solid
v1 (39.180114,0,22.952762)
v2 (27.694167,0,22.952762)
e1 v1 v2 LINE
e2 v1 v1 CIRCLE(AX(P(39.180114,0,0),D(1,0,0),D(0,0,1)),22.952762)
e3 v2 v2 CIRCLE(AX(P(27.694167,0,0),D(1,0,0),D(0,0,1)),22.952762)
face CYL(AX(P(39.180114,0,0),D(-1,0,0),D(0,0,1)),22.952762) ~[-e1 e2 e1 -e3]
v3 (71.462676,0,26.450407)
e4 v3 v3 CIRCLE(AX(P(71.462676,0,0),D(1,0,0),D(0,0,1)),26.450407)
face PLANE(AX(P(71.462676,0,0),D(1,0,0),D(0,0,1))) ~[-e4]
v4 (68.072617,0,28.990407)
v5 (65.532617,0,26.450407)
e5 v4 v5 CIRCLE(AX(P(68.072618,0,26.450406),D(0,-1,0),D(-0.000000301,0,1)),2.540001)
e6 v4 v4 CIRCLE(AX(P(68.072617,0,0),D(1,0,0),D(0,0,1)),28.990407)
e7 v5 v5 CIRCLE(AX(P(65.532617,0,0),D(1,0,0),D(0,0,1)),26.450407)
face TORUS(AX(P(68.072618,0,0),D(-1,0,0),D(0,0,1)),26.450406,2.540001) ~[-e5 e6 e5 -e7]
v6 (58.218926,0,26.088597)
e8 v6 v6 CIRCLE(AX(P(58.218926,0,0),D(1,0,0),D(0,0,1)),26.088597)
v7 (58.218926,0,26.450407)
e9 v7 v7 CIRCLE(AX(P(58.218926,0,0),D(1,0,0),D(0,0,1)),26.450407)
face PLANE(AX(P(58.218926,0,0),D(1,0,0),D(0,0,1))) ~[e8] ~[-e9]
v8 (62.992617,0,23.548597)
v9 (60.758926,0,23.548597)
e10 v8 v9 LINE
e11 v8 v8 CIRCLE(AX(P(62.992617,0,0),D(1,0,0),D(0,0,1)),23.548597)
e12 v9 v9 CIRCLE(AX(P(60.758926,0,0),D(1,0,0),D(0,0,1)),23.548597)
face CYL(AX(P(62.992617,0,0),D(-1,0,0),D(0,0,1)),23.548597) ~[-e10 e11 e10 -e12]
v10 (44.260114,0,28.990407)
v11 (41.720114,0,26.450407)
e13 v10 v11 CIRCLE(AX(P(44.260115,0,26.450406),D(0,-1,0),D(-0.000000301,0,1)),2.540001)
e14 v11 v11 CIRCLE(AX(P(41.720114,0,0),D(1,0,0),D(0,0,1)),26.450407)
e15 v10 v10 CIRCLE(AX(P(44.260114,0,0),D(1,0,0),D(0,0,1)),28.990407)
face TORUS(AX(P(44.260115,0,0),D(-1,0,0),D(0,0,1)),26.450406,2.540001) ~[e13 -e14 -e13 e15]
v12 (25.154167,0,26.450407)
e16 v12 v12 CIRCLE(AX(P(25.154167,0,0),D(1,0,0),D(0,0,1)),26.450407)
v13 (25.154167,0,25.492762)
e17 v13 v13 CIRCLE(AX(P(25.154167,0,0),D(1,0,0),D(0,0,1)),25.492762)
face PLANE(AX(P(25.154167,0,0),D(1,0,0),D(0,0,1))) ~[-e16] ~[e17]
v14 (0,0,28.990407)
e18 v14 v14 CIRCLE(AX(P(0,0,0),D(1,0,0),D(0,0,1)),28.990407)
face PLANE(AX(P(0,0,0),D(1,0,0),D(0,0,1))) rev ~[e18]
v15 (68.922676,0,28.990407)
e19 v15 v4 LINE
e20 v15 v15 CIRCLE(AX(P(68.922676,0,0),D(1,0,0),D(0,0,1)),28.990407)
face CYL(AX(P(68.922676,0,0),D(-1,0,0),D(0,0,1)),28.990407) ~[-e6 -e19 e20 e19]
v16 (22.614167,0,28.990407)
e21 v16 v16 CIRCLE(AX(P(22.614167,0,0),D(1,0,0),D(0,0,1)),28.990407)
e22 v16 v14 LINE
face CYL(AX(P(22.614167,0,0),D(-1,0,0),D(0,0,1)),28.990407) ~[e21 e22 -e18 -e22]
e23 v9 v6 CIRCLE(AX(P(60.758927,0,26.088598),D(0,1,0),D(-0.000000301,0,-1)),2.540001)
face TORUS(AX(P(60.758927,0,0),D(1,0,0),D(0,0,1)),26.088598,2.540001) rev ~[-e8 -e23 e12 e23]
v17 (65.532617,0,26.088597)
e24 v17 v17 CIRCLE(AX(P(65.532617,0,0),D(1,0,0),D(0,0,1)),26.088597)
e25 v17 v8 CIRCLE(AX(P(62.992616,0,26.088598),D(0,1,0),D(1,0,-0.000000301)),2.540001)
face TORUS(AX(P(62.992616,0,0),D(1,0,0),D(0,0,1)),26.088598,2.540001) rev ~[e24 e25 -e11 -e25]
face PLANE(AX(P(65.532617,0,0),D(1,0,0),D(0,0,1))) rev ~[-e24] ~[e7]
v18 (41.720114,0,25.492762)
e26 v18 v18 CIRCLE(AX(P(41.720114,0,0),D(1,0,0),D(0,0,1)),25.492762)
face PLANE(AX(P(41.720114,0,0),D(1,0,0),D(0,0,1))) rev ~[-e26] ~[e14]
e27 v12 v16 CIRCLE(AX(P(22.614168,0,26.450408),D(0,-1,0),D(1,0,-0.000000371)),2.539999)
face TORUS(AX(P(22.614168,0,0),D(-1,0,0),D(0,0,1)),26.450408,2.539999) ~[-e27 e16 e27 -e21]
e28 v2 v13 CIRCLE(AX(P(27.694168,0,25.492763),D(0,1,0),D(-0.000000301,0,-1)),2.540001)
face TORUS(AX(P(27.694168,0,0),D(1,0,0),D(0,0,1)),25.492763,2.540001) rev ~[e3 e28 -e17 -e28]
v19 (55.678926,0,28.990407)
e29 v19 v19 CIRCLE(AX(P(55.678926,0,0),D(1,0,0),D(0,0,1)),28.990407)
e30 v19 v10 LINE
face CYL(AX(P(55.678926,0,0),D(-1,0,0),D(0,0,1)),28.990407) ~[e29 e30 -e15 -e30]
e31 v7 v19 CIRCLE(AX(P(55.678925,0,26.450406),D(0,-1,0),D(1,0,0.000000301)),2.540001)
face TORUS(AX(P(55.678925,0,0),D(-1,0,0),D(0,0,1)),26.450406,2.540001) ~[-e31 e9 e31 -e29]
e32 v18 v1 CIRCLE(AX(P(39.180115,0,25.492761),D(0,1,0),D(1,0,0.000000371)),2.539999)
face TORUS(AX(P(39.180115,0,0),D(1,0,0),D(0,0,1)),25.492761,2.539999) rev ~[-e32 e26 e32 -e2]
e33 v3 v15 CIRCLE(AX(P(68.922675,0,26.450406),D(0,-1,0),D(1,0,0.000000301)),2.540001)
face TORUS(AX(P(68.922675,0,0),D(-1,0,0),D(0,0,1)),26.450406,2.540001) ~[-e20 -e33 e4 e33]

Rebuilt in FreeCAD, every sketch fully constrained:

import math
import FreeCAD as App
import Part
import Sketcher
from FreeCAD import Vector
Q = App.Units.Quantity

doc = App.newDocument("Part")
body = doc.addObject("PartDesign::Body", "Body")

sketch1 = doc.addObject("Sketcher::SketchObject", "Sketch")
body.addObject(sketch1)
sketch1.AttachmentSupport = (doc.XZ_Plane, [""])
sketch1.MapMode = "FlatFace"
sketch1.addGeometry([
    Part.LineSegment(Vector(0, 28.99, 0), Vector(0, 0, 0)),
    Part.LineSegment(Vector(0, 0, 0), Vector(71.46, 0, 0)),
    Part.LineSegment(Vector(71.46, 0, 0), Vector(71.46, 26.45, 0)),
    Part.ArcOfCircle(Part.Circle(Vector(68.92, 26.45, 0), Vector(0, 0, 1), 2.54), math.radians(0), math.radians(90)),
    Part.LineSegment(Vector(68.92, 28.99, 0), Vector(68.07, 28.99, 0)),
    Part.ArcOfCircle(Part.Circle(Vector(68.07, 26.45, 0), Vector(0, 0, 1), 2.54), math.radians(90), math.radians(180)),
    Part.LineSegment(Vector(65.53, 26.45, 0), Vector(65.53, 26.09, 0)),
    Part.ArcOfCircle(Part.Circle(Vector(62.99, 26.09, 0), Vector(0, 0, 1), 2.54), math.radians(-90), math.radians(0)),
    Part.LineSegment(Vector(62.99, 23.55, 0), Vector(60.76, 23.55, 0)),
    Part.ArcOfCircle(Part.Circle(Vector(60.76, 26.09, 0), Vector(0, 0, 1), 2.54), math.radians(-180), math.radians(-90)),
    Part.LineSegment(Vector(58.22, 26.09, 0), Vector(58.22, 26.45, 0)),
    Part.ArcOfCircle(Part.Circle(Vector(55.68, 26.45, 0), Vector(0, 0, 1), 2.54), math.radians(0), math.radians(90)),
    Part.LineSegment(Vector(55.68, 28.99, 0), Vector(44.26, 28.99, 0)),
    Part.ArcOfCircle(Part.Circle(Vector(44.26, 26.45, 0), Vector(0, 0, 1), 2.54), math.radians(90), math.radians(180)),
    Part.LineSegment(Vector(41.72, 26.45, 0), Vector(41.72, 25.49, 0)),
    Part.ArcOfCircle(Part.Circle(Vector(39.18, 25.49, 0), Vector(0, 0, 1), 2.54), math.radians(-90), math.radians(0)),
    Part.LineSegment(Vector(39.18, 22.95, 0), Vector(27.69, 22.95, 0)),
    Part.ArcOfCircle(Part.Circle(Vector(27.69, 25.49, 0), Vector(0, 0, 1), 2.54), math.radians(-180), math.radians(-90)),
    Part.LineSegment(Vector(25.15, 25.49, 0), Vector(25.15, 26.45, 0)),
    Part.ArcOfCircle(Part.Circle(Vector(22.61, 26.45, 0), Vector(0, 0, 1), 2.54), math.radians(0), math.radians(90)),
    Part.LineSegment(Vector(22.61, 28.99, 0), Vector(0, 28.99, 0)),
], False)
sketch1.addConstraint([
    Sketcher.Constraint("Coincident", 0, 2, 1, 1),
    Sketcher.Constraint("Coincident", 1, 2, 2, 1),
    Sketcher.Constraint("Tangent", 2, 2, 3, 1),
    Sketcher.Constraint("Tangent", 3, 2, 4, 1),
    Sketcher.Constraint("Tangent", 4, 2, 5, 1),
    Sketcher.Constraint("Tangent", 5, 2, 6, 1),
    Sketcher.Constraint("Tangent", 6, 2, 7, 2),
    Sketcher.Constraint("Tangent", 7, 1, 8, 1),
    Sketcher.Constraint("Tangent", 8, 2, 9, 2),
    Sketcher.Constraint("Tangent", 9, 1, 10, 1),
    Sketcher.Constraint("Tangent", 10, 2, 11, 1),
    Sketcher.Constraint("Tangent", 11, 2, 12, 1),
    Sketcher.Constraint("Tangent", 12, 2, 13, 1),
    Sketcher.Constraint("Tangent", 13, 2, 14, 1),
    Sketcher.Constraint("Tangent", 14, 2, 15, 2),
    Sketcher.Constraint("Tangent", 15, 1, 16, 1),
    Sketcher.Constraint("Tangent", 16, 2, 17, 2),
    Sketcher.Constraint("Tangent", 17, 1, 18, 1),
    Sketcher.Constraint("Tangent", 18, 2, 19, 1),
    Sketcher.Constraint("Tangent", 19, 2, 20, 1),
    Sketcher.Constraint("Coincident", 20, 2, 0, 1),
    Sketcher.Constraint("Vertical", 0),
    Sketcher.Constraint("Horizontal", 1),
    Sketcher.Constraint("Vertical", 2),
    Sketcher.Constraint("Horizontal", 4),
    Sketcher.Constraint("Vertical", 6),
    Sketcher.Constraint("Horizontal", 8),
    Sketcher.Constraint("Vertical", 10),
    Sketcher.Constraint("Horizontal", 12),
    Sketcher.Constraint("Vertical", 14),
    Sketcher.Constraint("Horizontal", 16),
    Sketcher.Constraint("Vertical", 18),
    Sketcher.Constraint("Horizontal", 20),
    Sketcher.Constraint("Coincident", 0, 2, -1, 1),
    Sketcher.Constraint("Equal", 3, 5),
    Sketcher.Constraint("Equal", 5, 7),
    Sketcher.Constraint("Equal", 7, 9),
    Sketcher.Constraint("Equal", 9, 11),
    Sketcher.Constraint("Equal", 11, 13),
    Sketcher.Constraint("Equal", 13, 15),
    Sketcher.Constraint("Equal", 15, 17),
    Sketcher.Constraint("Equal", 17, 19),
    Sketcher.Constraint("Horizontal", 5, 3, 11, 3),
    Sketcher.Constraint("Horizontal", 13, 3, 19, 3),
    Sketcher.Constraint("Radius", 3, Q("0.1 in")),
    Sketcher.Constraint("DistanceX", 13, 3, 5, 3, Q("0.9375001 in")),
    Sketcher.Constraint("DistanceX", 4, 2, 4, 1, 0.850059),
    Sketcher.Constraint("DistanceX", 8, 2, 8, 1, 2.233691),
    Sketcher.Constraint("DistanceY", 6, 2, 6, 1, 0.36181),
    Sketcher.Constraint("DistanceX", 1, 1, 1, 2, 71.462676),
    Sketcher.Constraint("DistanceX", 16, 2, 16, 1, 11.485947),
    Sketcher.Constraint("DistanceY", 0, 2, 0, 1, 28.990407),
    Sketcher.Constraint("DistanceY", 14, 2, 14, 1, 0.957645),
])
revolution = doc.addObject("PartDesign::Revolution", "Revolution")
body.addObject(revolution)
revolution.Profile = sketch1
revolution.ReferenceAxis = (sketch1, ["H_Axis"])
revolution.Angle = 360

doc.recompute()
